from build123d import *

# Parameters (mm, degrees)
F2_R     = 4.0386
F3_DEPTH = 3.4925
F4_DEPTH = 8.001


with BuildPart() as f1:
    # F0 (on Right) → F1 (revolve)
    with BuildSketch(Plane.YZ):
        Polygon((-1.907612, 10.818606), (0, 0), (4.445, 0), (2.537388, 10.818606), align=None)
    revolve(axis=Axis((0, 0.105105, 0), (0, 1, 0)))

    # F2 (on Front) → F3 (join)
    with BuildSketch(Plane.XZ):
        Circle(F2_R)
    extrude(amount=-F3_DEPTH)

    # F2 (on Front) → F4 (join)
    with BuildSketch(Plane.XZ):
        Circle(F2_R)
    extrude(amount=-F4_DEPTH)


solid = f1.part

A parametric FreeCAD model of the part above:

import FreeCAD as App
import Part
import Sketcher
Q = App.Units.Quantity

doc = App.newDocument("Part")
body = doc.addObject("PartDesign::Body", "Body")

# Sketch on YZ plane
sketch1 = doc.addObject("Sketcher::SketchObject", "Sketch")
body.addObject(sketch1)
sketch1.AttachmentSupport = (doc.YZ_Plane, [""])
sketch1.MapMode = "FlatFace"
sketch1.addGeometry(Part.LineSegment(App.Vector(-1.907612, 10.818606, 0), App.Vector(0, 0, 0)), False)
sketch1.addGeometry(Part.LineSegment(App.Vector(0, 0, 0), App.Vector(4.445, 0, 0)), False)
sketch1.addGeometry(Part.LineSegment(App.Vector(4.445, 0, 0), App.Vector(2.537388, 10.818606, 0)), False)
sketch1.addGeometry(Part.LineSegment(App.Vector(2.537388, 10.818606, 0), App.Vector(-1.907612, 10.818606, 0)), False)
sketch1.addConstraint(Sketcher.Constraint("Coincident", 0, 2, 1, 1))
sketch1.addConstraint(Sketcher.Constraint("Coincident", 1, 2, 2, 1))
sketch1.addConstraint(Sketcher.Constraint("Coincident", 2, 2, 3, 1))
sketch1.addConstraint(Sketcher.Constraint("Coincident", 3, 2, 0, 1))
sketch1.addConstraint(Sketcher.Constraint("Horizontal", 1))
sketch1.addConstraint(Sketcher.Constraint("Horizontal", 3))
sketch1.addConstraint(Sketcher.Constraint("Coincident", 0, 2, -1, 1))
sketch1.addConstraint(Sketcher.Constraint("Parallel", 0, 2))
sketch1.addConstraint(Sketcher.Constraint("Angle", 0, Q("-80.000001 deg")))
sketch1.addConstraint(Sketcher.Constraint("DistanceX", 1, 1, 1, 2, Q("0.175 in")))
sketch1.addConstraint(Sketcher.Constraint("Distance", 0, Q("0.4325 in")))
revolution = doc.addObject("PartDesign::Revolution", "Revolution")
body.addObject(revolution)
revolution.Profile = sketch1
revolution.ReferenceAxis = (sketch1, ["H_Axis"])
revolution.Angle = 360

# Sketch on XZ plane
sketch2 = doc.addObject("Sketcher::SketchObject", "Sketch001")
body.addObject(sketch2)
sketch2.AttachmentSupport = (doc.XZ_Plane, [""])
sketch2.MapMode = "FlatFace"
sketch2.addGeometry(Part.Circle(App.Vector(0, 0, 0), App.Vector(0, 0, 1), 4.0386), False)
sketch2.addConstraint(Sketcher.Constraint("Coincident", 0, 3, -1, 1))
sketch2.addConstraint(Sketcher.Constraint("Diameter", 0, Q("0.318 in")))
pad1 = doc.addObject("PartDesign::Pad", "Pad")
body.addObject(pad1)
pad1.Profile = sketch2
pad1.Length = Q("0.1375 in")
pad1.Reversed = True

# Sketch on XZ plane
sketch3 = doc.addObject("Sketcher::SketchObject", "Sketch002")
body.addObject(sketch3)
sketch3.AttachmentSupport = (doc.XZ_Plane, [""])
sketch3.MapMode = "FlatFace"
sketch3.addGeometry(Part.Circle(App.Vector(0, 0, 0), App.Vector(0, 0, 1), 4.0386), False)
sketch3.addConstraint(Sketcher.Constraint("Coincident", 0, 3, -1, 1))
sketch3.addConstraint(Sketcher.Constraint("Diameter", 0, Q("0.318 in")))
pad2 = doc.addObject("PartDesign::Pad", "Pad001")
body.addObject(pad2)
pad2.Profile = sketch3
pad2.Length = Q("0.315 in")
pad2.Reversed = True

doc.recompute()
